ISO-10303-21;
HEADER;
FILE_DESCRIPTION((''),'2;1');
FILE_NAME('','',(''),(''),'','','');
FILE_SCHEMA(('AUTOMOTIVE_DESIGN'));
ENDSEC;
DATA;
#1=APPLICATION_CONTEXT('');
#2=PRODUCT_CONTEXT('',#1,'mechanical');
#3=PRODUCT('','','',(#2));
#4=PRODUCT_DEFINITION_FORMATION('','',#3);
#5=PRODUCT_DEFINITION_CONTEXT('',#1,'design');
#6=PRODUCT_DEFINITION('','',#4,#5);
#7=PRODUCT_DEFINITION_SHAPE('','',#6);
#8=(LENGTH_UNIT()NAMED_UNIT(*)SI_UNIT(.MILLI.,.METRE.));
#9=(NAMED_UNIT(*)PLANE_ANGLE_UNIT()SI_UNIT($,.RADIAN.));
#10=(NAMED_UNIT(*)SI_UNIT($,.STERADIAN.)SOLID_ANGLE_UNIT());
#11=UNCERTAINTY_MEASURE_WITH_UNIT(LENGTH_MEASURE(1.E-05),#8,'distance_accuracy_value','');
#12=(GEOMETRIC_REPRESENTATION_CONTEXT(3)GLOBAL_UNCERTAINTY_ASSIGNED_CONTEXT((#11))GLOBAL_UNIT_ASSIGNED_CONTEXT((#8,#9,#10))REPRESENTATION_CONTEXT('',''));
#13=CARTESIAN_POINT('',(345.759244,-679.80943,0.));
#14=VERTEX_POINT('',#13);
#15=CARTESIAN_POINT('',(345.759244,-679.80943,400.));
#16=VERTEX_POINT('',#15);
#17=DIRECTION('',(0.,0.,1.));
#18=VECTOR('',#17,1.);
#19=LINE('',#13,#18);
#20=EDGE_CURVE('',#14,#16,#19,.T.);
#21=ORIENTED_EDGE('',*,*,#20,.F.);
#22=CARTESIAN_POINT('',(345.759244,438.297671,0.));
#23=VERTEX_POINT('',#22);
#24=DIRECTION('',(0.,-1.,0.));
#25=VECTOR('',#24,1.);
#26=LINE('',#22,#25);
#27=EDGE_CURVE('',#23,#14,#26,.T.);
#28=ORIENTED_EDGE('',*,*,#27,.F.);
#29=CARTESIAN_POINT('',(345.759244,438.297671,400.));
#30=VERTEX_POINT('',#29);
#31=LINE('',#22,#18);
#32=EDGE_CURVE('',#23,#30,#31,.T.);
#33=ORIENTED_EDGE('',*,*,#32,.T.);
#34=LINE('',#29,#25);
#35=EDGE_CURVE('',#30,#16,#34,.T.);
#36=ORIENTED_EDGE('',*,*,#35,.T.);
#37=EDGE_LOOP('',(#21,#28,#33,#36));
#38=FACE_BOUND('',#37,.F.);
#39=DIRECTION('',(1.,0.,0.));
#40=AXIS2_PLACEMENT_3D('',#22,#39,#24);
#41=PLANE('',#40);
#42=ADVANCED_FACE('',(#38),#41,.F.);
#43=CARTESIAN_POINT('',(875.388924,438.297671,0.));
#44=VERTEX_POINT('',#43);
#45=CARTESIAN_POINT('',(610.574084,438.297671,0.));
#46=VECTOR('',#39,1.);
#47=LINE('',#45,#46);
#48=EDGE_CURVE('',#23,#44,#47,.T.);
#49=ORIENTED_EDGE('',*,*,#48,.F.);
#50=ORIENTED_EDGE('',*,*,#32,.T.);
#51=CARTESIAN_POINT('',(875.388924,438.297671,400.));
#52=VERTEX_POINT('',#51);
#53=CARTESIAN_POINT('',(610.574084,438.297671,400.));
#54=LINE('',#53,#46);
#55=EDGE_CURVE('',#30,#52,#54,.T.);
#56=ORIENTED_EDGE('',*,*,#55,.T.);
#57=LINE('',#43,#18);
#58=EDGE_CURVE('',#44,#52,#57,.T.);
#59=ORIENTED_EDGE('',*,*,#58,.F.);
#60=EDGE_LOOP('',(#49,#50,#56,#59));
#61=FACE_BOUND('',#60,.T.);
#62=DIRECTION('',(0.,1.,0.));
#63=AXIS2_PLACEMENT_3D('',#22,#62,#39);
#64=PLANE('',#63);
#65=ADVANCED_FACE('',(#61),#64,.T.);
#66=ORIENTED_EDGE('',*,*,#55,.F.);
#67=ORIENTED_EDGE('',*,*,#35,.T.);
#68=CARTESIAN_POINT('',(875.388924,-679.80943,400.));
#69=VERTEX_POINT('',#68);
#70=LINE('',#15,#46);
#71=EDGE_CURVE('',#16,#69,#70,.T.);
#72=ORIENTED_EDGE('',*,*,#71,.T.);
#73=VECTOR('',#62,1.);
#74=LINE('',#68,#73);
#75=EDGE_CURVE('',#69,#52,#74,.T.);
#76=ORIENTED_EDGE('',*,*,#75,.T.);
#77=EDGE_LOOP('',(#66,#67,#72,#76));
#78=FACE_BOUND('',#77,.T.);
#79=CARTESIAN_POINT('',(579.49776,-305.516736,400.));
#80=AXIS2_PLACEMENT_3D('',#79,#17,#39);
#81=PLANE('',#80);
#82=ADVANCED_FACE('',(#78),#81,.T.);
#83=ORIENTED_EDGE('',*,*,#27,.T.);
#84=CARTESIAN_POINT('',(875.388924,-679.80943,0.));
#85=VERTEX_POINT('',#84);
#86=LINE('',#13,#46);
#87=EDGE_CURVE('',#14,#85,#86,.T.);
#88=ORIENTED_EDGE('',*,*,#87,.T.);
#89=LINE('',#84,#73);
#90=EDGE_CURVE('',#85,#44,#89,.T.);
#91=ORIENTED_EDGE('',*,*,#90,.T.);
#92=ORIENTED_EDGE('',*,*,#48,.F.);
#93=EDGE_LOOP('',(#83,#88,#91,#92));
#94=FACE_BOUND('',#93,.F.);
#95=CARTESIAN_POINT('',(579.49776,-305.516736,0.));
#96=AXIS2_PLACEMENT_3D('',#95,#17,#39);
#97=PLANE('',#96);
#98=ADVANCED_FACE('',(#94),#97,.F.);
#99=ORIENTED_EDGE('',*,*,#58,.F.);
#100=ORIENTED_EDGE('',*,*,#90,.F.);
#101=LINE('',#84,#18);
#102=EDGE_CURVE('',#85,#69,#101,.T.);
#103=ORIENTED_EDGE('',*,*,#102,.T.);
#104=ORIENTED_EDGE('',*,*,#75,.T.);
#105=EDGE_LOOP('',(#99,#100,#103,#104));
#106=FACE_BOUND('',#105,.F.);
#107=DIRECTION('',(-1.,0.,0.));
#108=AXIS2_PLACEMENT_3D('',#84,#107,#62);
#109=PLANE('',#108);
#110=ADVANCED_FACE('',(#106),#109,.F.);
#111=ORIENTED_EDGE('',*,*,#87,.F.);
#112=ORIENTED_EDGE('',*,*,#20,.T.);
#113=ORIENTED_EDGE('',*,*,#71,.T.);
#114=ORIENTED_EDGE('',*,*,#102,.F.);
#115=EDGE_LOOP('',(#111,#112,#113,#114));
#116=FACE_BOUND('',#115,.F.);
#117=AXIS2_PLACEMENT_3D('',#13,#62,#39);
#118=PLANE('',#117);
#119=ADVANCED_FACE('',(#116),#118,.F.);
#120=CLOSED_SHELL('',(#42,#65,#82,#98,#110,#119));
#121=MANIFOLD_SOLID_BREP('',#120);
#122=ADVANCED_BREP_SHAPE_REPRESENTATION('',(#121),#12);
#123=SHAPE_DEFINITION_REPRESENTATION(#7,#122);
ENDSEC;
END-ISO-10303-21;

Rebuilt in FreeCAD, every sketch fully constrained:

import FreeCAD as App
import Part
import Sketcher

V = App.Vector


def add_polygon(sketch, points):
    """Adds a closed chain of lines whose ends are joined by coincident constraints."""
    first, n = sketch.GeometryCount, len(points)
    for a, b in zip(points, points[1:] + points[:1]):
        sketch.addGeometry(Part.LineSegment(App.Vector(*a, 0), App.Vector(*b, 0)), False)
    for i in range(n):
        sketch.addConstraint(Sketcher.Constraint("Coincident", first + i, 2, first + (i + 1) % n, 1))

doc = App.newDocument("Part")
params = doc.addObject("Spreadsheet::Sheet", "Params")
for row, (alias, value) in enumerate([
    ("pad1_length", "400 mm"),
], start=1):
    params.set(f"A{row}", alias)
    params.set(f"B{row}", "=" + value)
    params.setAlias(f"B{row}", alias)

body = doc.addObject("PartDesign::Body", "Body")

# Sketch on XY plane
sketch1 = body.newObject("Sketcher::SketchObject", "Sketch")
sketch1.AttachmentSupport = (doc.getObject("XY_Plane"), [""])
sketch1.MapMode = "FlatFace"
add_polygon(sketch1, [(875, 438), (346, 438), (346, -680), (875, -680)])  # lines 0-3
sketch1.addConstraint([
    Sketcher.Constraint("Horizontal", 0),
    Sketcher.Constraint("Vertical", 1),
    Sketcher.Constraint("Horizontal", 2),
    Sketcher.Constraint("Vertical", 3),
    Sketcher.Constraint("DistanceY", 1, 2, 1, 1, 1118.107101),
    Sketcher.Constraint("DistanceX", 0, 2, 0, 1, 529.62968),
    Sketcher.Constraint("DistanceY", -1, 1, 0, 2, 438.297671),
    Sketcher.Constraint("DistanceX", -1, 1, 0, 2, 345.759244),
])
pad1 = body.newObject("PartDesign::Pad", "Pad")
pad1.Profile = sketch1
pad1.setExpression("Length", "Params.pad1_length")

doc.recompute()
